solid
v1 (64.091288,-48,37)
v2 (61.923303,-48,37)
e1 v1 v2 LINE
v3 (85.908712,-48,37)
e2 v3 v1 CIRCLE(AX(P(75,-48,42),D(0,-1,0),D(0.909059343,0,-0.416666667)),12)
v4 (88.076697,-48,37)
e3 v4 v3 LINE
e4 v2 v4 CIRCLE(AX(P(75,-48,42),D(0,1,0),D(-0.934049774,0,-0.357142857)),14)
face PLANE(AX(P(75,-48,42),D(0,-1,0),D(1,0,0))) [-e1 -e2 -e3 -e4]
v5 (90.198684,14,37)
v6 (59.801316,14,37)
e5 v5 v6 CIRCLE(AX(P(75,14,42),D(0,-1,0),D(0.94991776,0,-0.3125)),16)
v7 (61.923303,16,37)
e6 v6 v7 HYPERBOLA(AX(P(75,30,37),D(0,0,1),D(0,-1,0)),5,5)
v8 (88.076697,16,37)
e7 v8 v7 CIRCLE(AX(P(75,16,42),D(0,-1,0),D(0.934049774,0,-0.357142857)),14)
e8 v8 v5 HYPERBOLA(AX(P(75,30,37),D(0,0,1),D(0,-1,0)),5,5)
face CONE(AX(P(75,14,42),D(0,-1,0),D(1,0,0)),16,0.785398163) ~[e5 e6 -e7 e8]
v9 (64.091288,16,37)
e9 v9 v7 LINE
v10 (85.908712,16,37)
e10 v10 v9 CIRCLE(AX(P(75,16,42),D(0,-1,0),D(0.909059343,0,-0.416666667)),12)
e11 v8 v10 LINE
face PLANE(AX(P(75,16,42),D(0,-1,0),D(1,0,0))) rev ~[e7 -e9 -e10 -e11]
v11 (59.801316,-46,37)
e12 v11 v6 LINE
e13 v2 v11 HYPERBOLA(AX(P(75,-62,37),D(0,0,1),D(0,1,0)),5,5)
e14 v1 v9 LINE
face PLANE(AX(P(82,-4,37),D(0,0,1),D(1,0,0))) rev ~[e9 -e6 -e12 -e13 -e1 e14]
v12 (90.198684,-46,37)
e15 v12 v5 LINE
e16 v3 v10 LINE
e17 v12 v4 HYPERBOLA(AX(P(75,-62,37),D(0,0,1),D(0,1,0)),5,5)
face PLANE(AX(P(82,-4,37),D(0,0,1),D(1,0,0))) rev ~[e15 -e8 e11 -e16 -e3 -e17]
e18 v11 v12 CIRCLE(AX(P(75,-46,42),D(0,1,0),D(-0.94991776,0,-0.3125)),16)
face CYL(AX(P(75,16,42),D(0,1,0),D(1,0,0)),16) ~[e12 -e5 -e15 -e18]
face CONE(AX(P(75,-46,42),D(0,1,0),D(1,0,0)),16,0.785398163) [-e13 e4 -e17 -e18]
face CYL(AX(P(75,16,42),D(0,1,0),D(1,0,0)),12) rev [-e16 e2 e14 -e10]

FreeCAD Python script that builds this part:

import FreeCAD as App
import Part
import Sketcher

V = App.Vector


def edges_at(feature, points):
    """Names of the edges that pass closest to the given points."""
    edges = feature.Shape.Edges
    near = lambda p: min(range(len(edges)), key=lambda i: edges[i].distToShape(Part.Vertex(*p))[0])
    return sorted({f"Edge{near(p) + 1}" for p in points})


def add_polygon(sketch, points):
    """Adds a closed chain of lines whose ends are joined by coincident constraints."""
    first, n = sketch.GeometryCount, len(points)
    for a, b in zip(points, points[1:] + points[:1]):
        sketch.addGeometry(Part.LineSegment(App.Vector(*a, 0), App.Vector(*b, 0)), False)
    for i in range(n):
        sketch.addConstraint(Sketcher.Constraint("Coincident", first + i, 2, first + (i + 1) % n, 1))

doc = App.newDocument("Part")
body = doc.addObject("PartDesign::Body", "Body")

# Sketch on XY plane
sketch1 = body.newObject("Sketcher::SketchObject", "Sketch")
sketch1.AttachmentSupport = (doc.getObject("XY_Plane"), [""])
sketch1.MapMode = "FlatFace"
sketch1.AttachmentOffset = App.Placement(V(0, 0, -63), App.Rotation())
add_polygon(sketch1, [(32, 46), (32, -54), (132, -54), (132, 46)])  # lines 0-3
sketch1.addConstraint([
    Sketcher.Constraint("Vertical", 0),
    Sketcher.Constraint("Horizontal", 1),
    Sketcher.Constraint("Vertical", 2),
    Sketcher.Constraint("Horizontal", 3),
    Sketcher.Constraint("Equal", 3, 0),
    Sketcher.Constraint("DistanceX", 1, 1, 1, 2, 100.0),
    Sketcher.Constraint("DistanceX", -1, 1, 0, 2, 32.0),
    Sketcher.Constraint("DistanceY", 0, 2, -1, 1, 54.0),
])
pad1 = body.newObject("PartDesign::Pad", "Pad")
pad1.Profile = sketch1
pad1.Length = 100
body2 = doc.addObject("PartDesign::Body", "Body001")

# Sketch on XZ plane
sketch2 = body2.newObject("Sketcher::SketchObject", "Sketch001")
sketch2.AttachmentSupport = (doc.getObject("XZ_Plane001"), [""])
sketch2.MapMode = "FlatFace"
sketch2.AttachmentOffset = App.Placement(V(0, 0, -16), App.Rotation())
sketch2.addGeometry([
    Part.Circle(V(75, 42, 0), V(0, 0, 1), 16),
    Part.Circle(V(75, 42, 0), V(0, 0, 1), 12),
], False)
sketch2.addConstraint([
    Sketcher.Constraint("Coincident", 1, 3, 0, 3),
    Sketcher.Constraint("Diameter", 0, 32.0),
    Sketcher.Constraint("Diameter", 1, 24.0),
    Sketcher.Constraint("DistanceX", -1, 1, 0, 3, 75.0),
    Sketcher.Constraint("DistanceY", -1, 1, 0, 3, 42.0),
])
pad2 = body2.newObject("PartDesign::Pad", "Pad001")
pad2.Profile = sketch2
pad2.Length = 64
doc.recompute()

chamfer = body2.newObject("PartDesign::Chamfer", "Chamfer")
chamfer.Base = (pad2, edges_at(pad2, [(59, -48, 42), (59, 16, 42)]))
chamfer.Size = 2
doc.recompute()

boolean = body2.newObject("PartDesign::Boolean", "Boolean")
boolean.Type = "Cut"
boolean.addObjects([body])

doc.recompute()
